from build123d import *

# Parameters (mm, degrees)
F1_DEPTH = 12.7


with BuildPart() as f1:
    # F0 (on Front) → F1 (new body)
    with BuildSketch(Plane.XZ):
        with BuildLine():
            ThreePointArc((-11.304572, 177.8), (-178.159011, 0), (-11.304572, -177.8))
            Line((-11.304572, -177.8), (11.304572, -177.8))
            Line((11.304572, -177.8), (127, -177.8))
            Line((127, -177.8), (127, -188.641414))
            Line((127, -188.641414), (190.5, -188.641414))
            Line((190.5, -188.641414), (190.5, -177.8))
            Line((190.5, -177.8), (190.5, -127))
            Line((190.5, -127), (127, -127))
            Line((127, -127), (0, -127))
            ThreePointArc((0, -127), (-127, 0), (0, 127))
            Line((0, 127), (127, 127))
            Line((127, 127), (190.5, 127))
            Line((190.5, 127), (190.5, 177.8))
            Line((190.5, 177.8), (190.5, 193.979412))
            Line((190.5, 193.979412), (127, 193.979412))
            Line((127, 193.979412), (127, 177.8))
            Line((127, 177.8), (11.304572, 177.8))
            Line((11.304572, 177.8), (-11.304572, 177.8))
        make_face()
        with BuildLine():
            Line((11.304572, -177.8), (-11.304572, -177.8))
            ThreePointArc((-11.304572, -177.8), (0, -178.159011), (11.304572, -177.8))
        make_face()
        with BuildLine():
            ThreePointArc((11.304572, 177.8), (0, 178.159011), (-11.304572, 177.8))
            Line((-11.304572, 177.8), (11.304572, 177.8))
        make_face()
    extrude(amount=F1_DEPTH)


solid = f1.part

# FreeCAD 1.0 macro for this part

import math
import FreeCAD as App
import Part
import Sketcher
from FreeCAD import Vector
Q = App.Units.Quantity

doc = App.newDocument("Part")
body = doc.addObject("PartDesign::Body", "Body")

# Sketch on XZ plane
sketch1 = doc.addObject("Sketcher::SketchObject", "Sketch")
body.addObject(sketch1)
sketch1.AttachmentSupport = (doc.XZ_Plane, [""])
sketch1.MapMode = "FlatFace"
sketch1.addGeometry([
    Part.ArcOfCircle(Part.Circle(Vector(0, 0, 0), Vector(0, 0, 1), 178.159011), math.radians(93.637984), math.radians(266.362016)),  # 0
    Part.ArcOfCircle(Part.Circle(Vector(0, 0.000206, 0), Vector(0, 0, 1), 178.159217), math.radians(-93.63798), math.radians(-86.36202)),  # 1
    Part.LineSegment(Vector(11.304572, -177.8, 0), Vector(127, -177.8, 0)),  # 2
    Part.LineSegment(Vector(127, -177.8, 0), Vector(127, -188.641414, 0)),  # 3
    Part.LineSegment(Vector(127, -188.641414, 0), Vector(190.5, -188.641414, 0)),  # 4
    Part.LineSegment(Vector(190.5, -188.641414, 0), Vector(190.5, -127, 0)),  # 5
    Part.LineSegment(Vector(190.5, -127, 0), Vector(0, -127, 0)),  # 6
    Part.ArcOfCircle(Part.Circle(Vector(0, 0, 0), Vector(0, 0, 1), 127), math.radians(90), math.radians(270)),  # 7
    Part.LineSegment(Vector(0, 127, 0), Vector(190.5, 127, 0)),  # 8
    Part.LineSegment(Vector(190.5, 127, 0), Vector(190.5, 193.979412, 0)),  # 9
    Part.LineSegment(Vector(190.5, 193.979412, 0), Vector(127, 193.979412, 0)),  # 10
    Part.LineSegment(Vector(127, 193.979412, 0), Vector(127, 177.8, 0)),  # 11
    Part.LineSegment(Vector(127, 177.8, 0), Vector(11.304572, 177.8, 0)),  # 12
    Part.ArcOfCircle(Part.Circle(Vector(0, -0.000206, 0), Vector(0, 0, 1), 178.159217), math.radians(86.36202), math.radians(93.63798)),  # 13
], False)
sketch1.addConstraint([
    Sketcher.Constraint("Coincident", 0, 2, 1, 1),
    Sketcher.Constraint("Coincident", 1, 2, 2, 1),
    Sketcher.Constraint("Coincident", 2, 2, 3, 1),
    Sketcher.Constraint("Coincident", 3, 2, 4, 1),
    Sketcher.Constraint("Coincident", 4, 2, 5, 1),
    Sketcher.Constraint("Coincident", 5, 2, 6, 1),
    Sketcher.Constraint("Coincident", 6, 2, 7, 2),
    Sketcher.Constraint("Coincident", 7, 1, 8, 1),
    Sketcher.Constraint("Coincident", 8, 2, 9, 1),
    Sketcher.Constraint("Coincident", 9, 2, 10, 1),
    Sketcher.Constraint("Coincident", 10, 2, 11, 1),
    Sketcher.Constraint("Coincident", 11, 2, 12, 1),
    Sketcher.Constraint("Coincident", 12, 2, 13, 1),
    Sketcher.Constraint("Coincident", 13, 2, 0, 1),
    Sketcher.Constraint("Horizontal", 2),
    Sketcher.Constraint("Vertical", 3),
    Sketcher.Constraint("Horizontal", 4),
    Sketcher.Constraint("Vertical", 5),
    Sketcher.Constraint("Horizontal", 6),
    Sketcher.Constraint("Horizontal", 8),
    Sketcher.Constraint("Vertical", 9),
    Sketcher.Constraint("Horizontal", 10),
    Sketcher.Constraint("Vertical", 11),
    Sketcher.Constraint("Horizontal", 12),
    Sketcher.Constraint("Coincident", 0, 3, -1, 1),
    Sketcher.Constraint("Coincident", 7, 3, -1, 1),
    Sketcher.Constraint("PointOnObject", 1, 3, -2),
    Sketcher.Constraint("PointOnObject", 13, 3, -2),
    Sketcher.Constraint("PointOnObject", 6, 2, -2),
    Sketcher.Constraint("PointOnObject", 7, 1, -2),
    Sketcher.Constraint("Radius", 7, Q("5 in")),
    Sketcher.Constraint("DistanceX", 4, 1, 4, 2, Q("2.5 in")),
    Sketcher.Constraint("DistanceX", 6, 2, 6, 1, Q("7.5 in")),
    Sketcher.Constraint("DistanceX", 8, 1, 8, 2, Q("7.5 in")),
    Sketcher.Constraint("DistanceX", 10, 2, 10, 1, Q("2.5 in")),
    Sketcher.Constraint("DistanceY", 0, 2, -1, 1, Q("7 in")),
    Sketcher.Constraint("DistanceY", 1, 2, -1, 1, Q("7 in")),
    Sketcher.Constraint("DistanceY", -1, 1, 11, 2, Q("7 in")),
    Sketcher.Constraint("DistanceY", -1, 1, 13, 2, Q("7 in")),
    Sketcher.Constraint("Radius", 0, Q("178.159011 mm")),
    Sketcher.Constraint("Radius", 1, Q("178.159217 mm")),
    Sketcher.Constraint("Radius", 13, Q("178.159217 mm")),
    Sketcher.Constraint("DistanceY", 9, 1, 9, 2, Q("66.979412 mm")),
    Sketcher.Constraint("DistanceY", 3, 2, 3, 1, Q("10.841414 mm")),
])
pad1 = doc.addObject("PartDesign::Pad", "Pad")
body.addObject(pad1)
pad1.Profile = sketch1
pad1.Length = Q("0.5 in")

doc.recompute()
